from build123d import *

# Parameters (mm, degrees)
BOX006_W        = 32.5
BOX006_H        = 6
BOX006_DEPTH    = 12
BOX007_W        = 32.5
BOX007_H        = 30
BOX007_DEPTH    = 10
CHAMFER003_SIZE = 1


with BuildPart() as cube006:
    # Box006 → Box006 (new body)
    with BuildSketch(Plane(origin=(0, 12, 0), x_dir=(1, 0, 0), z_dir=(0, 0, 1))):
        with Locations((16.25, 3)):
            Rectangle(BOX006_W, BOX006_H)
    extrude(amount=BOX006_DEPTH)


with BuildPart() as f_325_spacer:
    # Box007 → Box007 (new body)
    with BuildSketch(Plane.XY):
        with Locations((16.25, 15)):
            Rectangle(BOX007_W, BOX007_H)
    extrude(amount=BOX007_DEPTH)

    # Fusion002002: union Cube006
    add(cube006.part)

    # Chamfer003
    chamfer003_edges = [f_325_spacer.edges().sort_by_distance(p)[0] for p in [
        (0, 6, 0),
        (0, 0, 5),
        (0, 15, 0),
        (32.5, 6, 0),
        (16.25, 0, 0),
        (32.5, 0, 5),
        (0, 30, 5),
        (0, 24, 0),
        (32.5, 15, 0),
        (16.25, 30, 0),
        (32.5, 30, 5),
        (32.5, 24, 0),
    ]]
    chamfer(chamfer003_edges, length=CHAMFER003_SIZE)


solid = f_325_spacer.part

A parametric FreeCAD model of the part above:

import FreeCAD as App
import Part
import Sketcher
from FreeCAD import Vector


def edges_at(feature, points):
    """Names of the edges that pass closest to the given points."""
    edges = feature.Shape.Edges
    near = lambda p: min(range(len(edges)), key=lambda i: edges[i].distToShape(Part.Vertex(*p))[0])
    return sorted({f"Edge{near(p) + 1}" for p in points})

doc = App.newDocument("Part")
body = doc.addObject("PartDesign::Body", "Body")

# Sketch on XY plane
sketch1 = body.newObject("Sketcher::SketchObject", "Sketch")
sketch1.AttachmentSupport = (doc.getObject("XY_Plane"), [""])
sketch1.MapMode = "FlatFace"
sketch1.addGeometry([
    Part.LineSegment(Vector(0, 18, 0), Vector(0, 12, 0)),
    Part.LineSegment(Vector(0, 12, 0), Vector(32, 12, 0)),
    Part.LineSegment(Vector(32, 12, 0), Vector(32, 18, 0)),
    Part.LineSegment(Vector(32, 18, 0), Vector(0, 18, 0)),
], False)
sketch1.addConstraint([
    Sketcher.Constraint("Coincident", 0, 2, 1, 1),
    Sketcher.Constraint("Coincident", 1, 2, 2, 1),
    Sketcher.Constraint("Coincident", 2, 2, 3, 1),
    Sketcher.Constraint("Coincident", 3, 2, 0, 1),
    Sketcher.Constraint("Vertical", 0),
    Sketcher.Constraint("Horizontal", 1),
    Sketcher.Constraint("Vertical", 2),
    Sketcher.Constraint("Horizontal", 3),
    Sketcher.Constraint("PointOnObject", 0, 2, -2),
    Sketcher.Constraint("DistanceY", 0, 2, 0, 1, 6.0),
    Sketcher.Constraint("DistanceX", 1, 1, 1, 2, 32.5),
    Sketcher.Constraint("DistanceY", -1, 1, 0, 2, 12.0),
])
pad1 = body.newObject("PartDesign::Pad", "Pad")
pad1.Profile = sketch1
pad1.Length = 12
body2 = doc.addObject("PartDesign::Body", "Body001")

# Sketch on XY plane
sketch2 = body2.newObject("Sketcher::SketchObject", "Sketch001")
sketch2.AttachmentSupport = (doc.getObject("XY_Plane001"), [""])
sketch2.MapMode = "FlatFace"
sketch2.addGeometry([
    Part.LineSegment(Vector(0, 30, 0), Vector(0, 0, 0)),
    Part.LineSegment(Vector(0, 0, 0), Vector(32, 0, 0)),
    Part.LineSegment(Vector(32, 0, 0), Vector(32, 30, 0)),
    Part.LineSegment(Vector(32, 30, 0), Vector(0, 30, 0)),
], False)
sketch2.addConstraint([
    Sketcher.Constraint("Coincident", 0, 2, 1, 1),
    Sketcher.Constraint("Coincident", 1, 2, 2, 1),
    Sketcher.Constraint("Coincident", 2, 2, 3, 1),
    Sketcher.Constraint("Coincident", 3, 2, 0, 1),
    Sketcher.Constraint("Vertical", 0),
    Sketcher.Constraint("Horizontal", 1),
    Sketcher.Constraint("Vertical", 2),
    Sketcher.Constraint("Horizontal", 3),
    Sketcher.Constraint("Coincident", 0, 2, -1, 1),
    Sketcher.Constraint("DistanceY", 0, 2, 0, 1, 30.0),
    Sketcher.Constraint("DistanceX", 1, 1, 1, 2, 32.5),
])
pad2 = body2.newObject("PartDesign::Pad", "Pad001")
pad2.Profile = sketch2
pad2.Length = 10
doc.recompute()

boolean = body2.newObject("PartDesign::Boolean", "Boolean")
boolean.Type = "Fuse"
boolean.addObjects([body])
doc.recompute()

chamfer = body2.newObject("PartDesign::Chamfer", "Chamfer")
chamfer.Base = (boolean, edges_at(boolean, [
    (0, 15, 0),
    (0, 0, 5),
    (0, 15, 0),
    (32.5, 15, 0),
    (16.25, 0, 0),
    (32.5, 0, 5),
    (0, 30, 5),
    (0, 15, 0),
    (32.5, 15, 0),
    (16.25, 30, 0),
    (32.5, 30, 5),
    (32.5, 15, 0),
]))
chamfer.Size = 1

doc.recompute()
